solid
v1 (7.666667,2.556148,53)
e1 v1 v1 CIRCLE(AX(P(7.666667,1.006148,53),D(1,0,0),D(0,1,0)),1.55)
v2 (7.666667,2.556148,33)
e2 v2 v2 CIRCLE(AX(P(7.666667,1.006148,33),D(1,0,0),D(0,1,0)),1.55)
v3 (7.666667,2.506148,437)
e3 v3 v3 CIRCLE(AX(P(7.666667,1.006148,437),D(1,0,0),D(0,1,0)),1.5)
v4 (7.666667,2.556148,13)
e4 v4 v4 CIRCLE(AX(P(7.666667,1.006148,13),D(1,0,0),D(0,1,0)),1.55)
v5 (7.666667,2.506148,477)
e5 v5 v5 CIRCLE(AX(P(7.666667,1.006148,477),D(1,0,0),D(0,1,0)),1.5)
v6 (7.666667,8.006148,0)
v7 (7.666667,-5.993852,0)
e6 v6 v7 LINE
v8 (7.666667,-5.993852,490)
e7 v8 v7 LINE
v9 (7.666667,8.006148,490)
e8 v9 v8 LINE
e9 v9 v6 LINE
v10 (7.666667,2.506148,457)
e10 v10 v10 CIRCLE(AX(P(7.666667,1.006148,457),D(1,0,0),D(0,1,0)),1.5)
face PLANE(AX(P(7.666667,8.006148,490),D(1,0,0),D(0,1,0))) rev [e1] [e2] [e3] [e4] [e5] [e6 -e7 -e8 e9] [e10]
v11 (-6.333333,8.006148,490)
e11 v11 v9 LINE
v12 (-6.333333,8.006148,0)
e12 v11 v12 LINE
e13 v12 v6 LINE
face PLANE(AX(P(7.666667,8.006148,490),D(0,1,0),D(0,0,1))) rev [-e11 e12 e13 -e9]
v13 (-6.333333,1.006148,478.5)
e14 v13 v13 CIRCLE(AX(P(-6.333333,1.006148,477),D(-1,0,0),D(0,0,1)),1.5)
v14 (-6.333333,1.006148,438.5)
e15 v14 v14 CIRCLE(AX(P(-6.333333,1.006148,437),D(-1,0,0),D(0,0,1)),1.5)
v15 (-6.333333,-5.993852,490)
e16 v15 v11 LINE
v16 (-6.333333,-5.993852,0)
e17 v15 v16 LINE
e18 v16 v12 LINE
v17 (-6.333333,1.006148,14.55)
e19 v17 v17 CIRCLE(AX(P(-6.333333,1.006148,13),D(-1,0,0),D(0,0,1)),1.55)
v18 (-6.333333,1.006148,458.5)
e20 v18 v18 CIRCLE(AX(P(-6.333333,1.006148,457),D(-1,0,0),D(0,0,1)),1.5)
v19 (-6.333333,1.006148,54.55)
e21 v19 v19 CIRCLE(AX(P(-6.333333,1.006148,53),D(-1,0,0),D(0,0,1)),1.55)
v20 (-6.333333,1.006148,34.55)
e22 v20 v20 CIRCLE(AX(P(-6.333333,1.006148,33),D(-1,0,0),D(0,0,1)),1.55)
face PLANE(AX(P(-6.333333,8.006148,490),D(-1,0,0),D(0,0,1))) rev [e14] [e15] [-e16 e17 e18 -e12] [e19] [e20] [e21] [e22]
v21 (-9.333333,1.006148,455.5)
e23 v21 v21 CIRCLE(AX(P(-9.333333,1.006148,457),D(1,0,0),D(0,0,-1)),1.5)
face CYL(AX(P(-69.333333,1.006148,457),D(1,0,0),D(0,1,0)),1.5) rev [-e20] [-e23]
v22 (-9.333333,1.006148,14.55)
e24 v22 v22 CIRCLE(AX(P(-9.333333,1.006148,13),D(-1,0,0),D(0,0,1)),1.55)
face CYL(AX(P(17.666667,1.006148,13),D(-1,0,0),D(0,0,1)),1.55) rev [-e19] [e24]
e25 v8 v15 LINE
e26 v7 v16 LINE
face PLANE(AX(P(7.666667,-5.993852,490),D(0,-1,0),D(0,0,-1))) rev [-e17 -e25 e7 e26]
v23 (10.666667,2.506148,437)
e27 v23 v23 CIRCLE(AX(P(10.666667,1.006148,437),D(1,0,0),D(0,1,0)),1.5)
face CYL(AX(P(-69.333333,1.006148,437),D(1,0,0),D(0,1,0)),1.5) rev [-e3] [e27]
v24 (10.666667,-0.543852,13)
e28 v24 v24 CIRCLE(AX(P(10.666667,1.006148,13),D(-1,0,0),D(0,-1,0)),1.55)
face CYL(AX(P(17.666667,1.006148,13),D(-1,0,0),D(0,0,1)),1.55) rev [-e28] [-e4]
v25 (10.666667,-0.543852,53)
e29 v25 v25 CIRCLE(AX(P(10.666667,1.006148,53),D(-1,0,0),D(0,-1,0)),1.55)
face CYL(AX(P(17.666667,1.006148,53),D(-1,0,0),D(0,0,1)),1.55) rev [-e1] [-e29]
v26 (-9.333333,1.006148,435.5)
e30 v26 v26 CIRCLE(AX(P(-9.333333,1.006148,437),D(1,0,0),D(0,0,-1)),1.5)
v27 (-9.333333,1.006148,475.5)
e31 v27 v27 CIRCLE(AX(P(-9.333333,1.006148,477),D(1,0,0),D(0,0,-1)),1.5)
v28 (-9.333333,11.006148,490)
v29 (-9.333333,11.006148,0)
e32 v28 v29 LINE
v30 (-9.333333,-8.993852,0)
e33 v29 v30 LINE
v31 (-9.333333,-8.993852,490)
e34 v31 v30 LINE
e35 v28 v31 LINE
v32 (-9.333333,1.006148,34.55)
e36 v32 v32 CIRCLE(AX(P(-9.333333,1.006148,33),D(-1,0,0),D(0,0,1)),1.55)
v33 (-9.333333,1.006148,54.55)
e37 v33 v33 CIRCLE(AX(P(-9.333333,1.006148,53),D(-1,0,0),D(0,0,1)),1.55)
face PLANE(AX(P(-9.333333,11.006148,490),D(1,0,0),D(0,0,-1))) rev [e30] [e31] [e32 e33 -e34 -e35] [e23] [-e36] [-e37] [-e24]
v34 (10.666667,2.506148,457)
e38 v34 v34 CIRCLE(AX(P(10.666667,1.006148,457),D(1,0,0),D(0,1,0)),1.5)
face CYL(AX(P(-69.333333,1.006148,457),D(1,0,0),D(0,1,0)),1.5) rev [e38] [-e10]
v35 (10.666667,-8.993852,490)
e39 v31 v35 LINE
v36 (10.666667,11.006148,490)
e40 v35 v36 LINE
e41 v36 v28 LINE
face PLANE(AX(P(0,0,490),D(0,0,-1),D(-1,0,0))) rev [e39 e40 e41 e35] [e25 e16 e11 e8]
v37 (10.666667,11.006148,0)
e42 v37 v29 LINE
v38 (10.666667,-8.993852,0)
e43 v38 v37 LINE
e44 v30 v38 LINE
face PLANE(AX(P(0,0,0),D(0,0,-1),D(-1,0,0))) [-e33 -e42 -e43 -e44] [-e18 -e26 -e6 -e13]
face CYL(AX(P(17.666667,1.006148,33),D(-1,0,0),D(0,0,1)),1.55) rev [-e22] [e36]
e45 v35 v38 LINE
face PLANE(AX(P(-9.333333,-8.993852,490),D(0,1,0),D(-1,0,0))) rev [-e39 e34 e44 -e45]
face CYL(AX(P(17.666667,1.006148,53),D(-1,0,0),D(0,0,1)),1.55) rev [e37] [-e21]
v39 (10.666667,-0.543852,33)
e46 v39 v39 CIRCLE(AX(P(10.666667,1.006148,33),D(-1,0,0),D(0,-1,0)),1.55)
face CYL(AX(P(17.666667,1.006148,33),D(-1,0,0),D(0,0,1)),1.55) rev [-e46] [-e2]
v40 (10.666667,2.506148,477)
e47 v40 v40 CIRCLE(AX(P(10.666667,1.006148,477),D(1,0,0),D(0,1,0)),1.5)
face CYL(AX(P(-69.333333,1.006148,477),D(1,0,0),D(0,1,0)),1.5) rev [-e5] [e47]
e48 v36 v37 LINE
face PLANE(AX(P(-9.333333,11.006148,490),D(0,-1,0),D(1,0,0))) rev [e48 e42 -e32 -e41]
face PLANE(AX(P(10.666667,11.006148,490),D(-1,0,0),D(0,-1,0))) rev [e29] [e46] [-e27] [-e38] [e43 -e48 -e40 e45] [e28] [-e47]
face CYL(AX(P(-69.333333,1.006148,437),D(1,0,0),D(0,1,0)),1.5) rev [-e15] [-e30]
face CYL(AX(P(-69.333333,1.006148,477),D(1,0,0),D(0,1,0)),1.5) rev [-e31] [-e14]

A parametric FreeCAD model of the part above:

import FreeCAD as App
import Part
import Sketcher

V = App.Vector
Q = App.Units.Quantity


def add_polygon(sketch, points):
    """Adds a closed chain of lines whose ends are joined by coincident constraints."""
    first, n = sketch.GeometryCount, len(points)
    for a, b in zip(points, points[1:] + points[:1]):
        sketch.addGeometry(Part.LineSegment(App.Vector(*a, 0), App.Vector(*b, 0)), False)
    for i in range(n):
        sketch.addConstraint(Sketcher.Constraint("Coincident", first + i, 2, first + (i + 1) % n, 1))

doc = App.newDocument("Part")
body = doc.addObject("PartDesign::Body", "Body")

sketch1 = doc.addObject("Sketcher::SketchObject", "Sketch")
body.addObject(sketch1)
sketch1.AttachmentSupport = (doc.XY_Plane, [""])
sketch1.MapMode = "FlatFace"
add_polygon(sketch1, [(-9, 11), (-9, -9), (11, -9), (11, 11)])
sketch1.addConstraint(Sketcher.Constraint("Vertical", 0))
sketch1.addConstraint(Sketcher.Constraint("Horizontal", 1))
sketch1.addConstraint(Sketcher.Constraint("Vertical", 2))
sketch1.addConstraint(Sketcher.Constraint("Horizontal", 3))
sketch1.addConstraint(Sketcher.Constraint("Equal", 3, 0))
sketch1.addConstraint(Sketcher.Constraint("DistanceX", 1, 1, 1, 2, Q("20 mm")))
sketch1.addConstraint(Sketcher.Constraint("DistanceX", 0, 2, -1, 1, Q("9.333333 mm")))
sketch1.addConstraint(Sketcher.Constraint("DistanceY", 0, 2, -1, 1, Q("8.993852 mm")))
pad1 = doc.addObject("PartDesign::Pad", "Pad")
body.addObject(pad1)
pad1.Profile = sketch1
pad1.Length = 490

sketch2 = doc.addObject("Sketcher::SketchObject", "Sketch001")
body.addObject(sketch2)
sketch2.AttachmentSupport = (doc.XY_Plane, [""])
sketch2.MapMode = "FlatFace"
add_polygon(sketch2, [(8, 8), (8, -6), (-6, -6), (-6, 8)])
sketch2.addConstraint(Sketcher.Constraint("Vertical", 0))
sketch2.addConstraint(Sketcher.Constraint("Horizontal", 1))
sketch2.addConstraint(Sketcher.Constraint("Vertical", 2))
sketch2.addConstraint(Sketcher.Constraint("Horizontal", 3))
sketch2.addConstraint(Sketcher.Constraint("Equal", 3, 0))
sketch2.addConstraint(Sketcher.Constraint("DistanceX", 1, 2, 1, 1, Q("14 mm")))
sketch2.addConstraint(Sketcher.Constraint("DistanceX", -1, 1, 0, 2, Q("7.666667 mm")))
sketch2.addConstraint(Sketcher.Constraint("DistanceY", 0, 2, -1, 1, Q("5.993852 mm")))
pocket1 = doc.addObject("PartDesign::Pocket", "Pocket")
body.addObject(pocket1)
pocket1.Profile = sketch2
pocket1.Type = "ThroughAll"
pocket1.Reversed = True

sketch3 = doc.addObject("Sketcher::SketchObject", "Sketch002")
body.addObject(sketch3)
sketch3.AttachmentSupport = (doc.YZ_Plane, [""])
sketch3.MapMode = "FlatFace"
sketch3.AttachmentOffset = App.Placement(V(0, 0, 10.666667), App.Rotation())
sketch3.addGeometry(Part.Circle(V(1, 477, 0), V(0, 0, 1), 1.5), False)
sketch3.addGeometry(Part.Circle(V(1, 457, 0), V(0, 0, 1), 1.5), False)
sketch3.addGeometry(Part.Circle(V(1, 437, 0), V(0, 0, 1), 1.5), False)
sketch3.addConstraint(Sketcher.Constraint("Equal", 0, 1))
sketch3.addConstraint(Sketcher.Constraint("Equal", 1, 2))
sketch3.addConstraint(Sketcher.Constraint("Vertical", 0, 3, 1, 3))
sketch3.addConstraint(Sketcher.Constraint("Vertical", 1, 3, 2, 3))
sketch3.addConstraint(Sketcher.Constraint("Diameter", 0, Q("3 mm")))
sketch3.addConstraint(Sketcher.Constraint("DistanceY", -1, 1, 0, 3, Q("477 mm")))
sketch3.addConstraint(Sketcher.Constraint("DistanceY", -1, 1, 1, 3, Q("457 mm")))
sketch3.addConstraint(Sketcher.Constraint("DistanceY", -1, 1, 2, 3, Q("437 mm")))
sketch3.addConstraint(Sketcher.Constraint("DistanceX", -1, 1, 0, 3, Q("1.006148 mm")))
pocket2 = doc.addObject("PartDesign::Pocket", "Pocket001")
body.addObject(pocket2)
pocket2.Profile = sketch3
pocket2.Length = 80

sketch4 = doc.addObject("Sketcher::SketchObject", "Sketch003")
body.addObject(sketch4)
sketch4.AttachmentSupport = (doc.YZ_Plane, [""])
sketch4.MapMode = "FlatFace"
sketch4.AttachmentOffset = App.Placement(V(0, 0, -9.333333), App.Rotation())
sketch4.addGeometry(Part.Circle(V(1, 13, 0), V(0, 0, 1), 1.6), False)
sketch4.addGeometry(Part.Circle(V(1, 33, 0), V(0, 0, 1), 1.6), False)
sketch4.addGeometry(Part.Circle(V(1, 53, 0), V(0, 0, 1), 1.6), False)
sketch4.addConstraint(Sketcher.Constraint("Equal", 0, 1))
sketch4.addConstraint(Sketcher.Constraint("Equal", 1, 2))
sketch4.addConstraint(Sketcher.Constraint("Vertical", 0, 3, 1, 3))
sketch4.addConstraint(Sketcher.Constraint("Vertical", 1, 3, 2, 3))
sketch4.addConstraint(Sketcher.Constraint("Diameter", 0, Q("3.1 mm")))
sketch4.addConstraint(Sketcher.Constraint("DistanceY", -1, 1, 0, 3, Q("13 mm")))
sketch4.addConstraint(Sketcher.Constraint("DistanceY", -1, 1, 1, 3, Q("33 mm")))
sketch4.addConstraint(Sketcher.Constraint("DistanceY", -1, 1, 2, 3, Q("53 mm")))
sketch4.addConstraint(Sketcher.Constraint("DistanceX", -1, 1, 0, 3, Q("1.006148 mm")))
pocket3 = doc.addObject("PartDesign::Pocket", "Pocket002")
body.addObject(pocket3)
pocket3.Profile = sketch4
pocket3.Length = 27
pocket3.Reversed = True

doc.recompute()
